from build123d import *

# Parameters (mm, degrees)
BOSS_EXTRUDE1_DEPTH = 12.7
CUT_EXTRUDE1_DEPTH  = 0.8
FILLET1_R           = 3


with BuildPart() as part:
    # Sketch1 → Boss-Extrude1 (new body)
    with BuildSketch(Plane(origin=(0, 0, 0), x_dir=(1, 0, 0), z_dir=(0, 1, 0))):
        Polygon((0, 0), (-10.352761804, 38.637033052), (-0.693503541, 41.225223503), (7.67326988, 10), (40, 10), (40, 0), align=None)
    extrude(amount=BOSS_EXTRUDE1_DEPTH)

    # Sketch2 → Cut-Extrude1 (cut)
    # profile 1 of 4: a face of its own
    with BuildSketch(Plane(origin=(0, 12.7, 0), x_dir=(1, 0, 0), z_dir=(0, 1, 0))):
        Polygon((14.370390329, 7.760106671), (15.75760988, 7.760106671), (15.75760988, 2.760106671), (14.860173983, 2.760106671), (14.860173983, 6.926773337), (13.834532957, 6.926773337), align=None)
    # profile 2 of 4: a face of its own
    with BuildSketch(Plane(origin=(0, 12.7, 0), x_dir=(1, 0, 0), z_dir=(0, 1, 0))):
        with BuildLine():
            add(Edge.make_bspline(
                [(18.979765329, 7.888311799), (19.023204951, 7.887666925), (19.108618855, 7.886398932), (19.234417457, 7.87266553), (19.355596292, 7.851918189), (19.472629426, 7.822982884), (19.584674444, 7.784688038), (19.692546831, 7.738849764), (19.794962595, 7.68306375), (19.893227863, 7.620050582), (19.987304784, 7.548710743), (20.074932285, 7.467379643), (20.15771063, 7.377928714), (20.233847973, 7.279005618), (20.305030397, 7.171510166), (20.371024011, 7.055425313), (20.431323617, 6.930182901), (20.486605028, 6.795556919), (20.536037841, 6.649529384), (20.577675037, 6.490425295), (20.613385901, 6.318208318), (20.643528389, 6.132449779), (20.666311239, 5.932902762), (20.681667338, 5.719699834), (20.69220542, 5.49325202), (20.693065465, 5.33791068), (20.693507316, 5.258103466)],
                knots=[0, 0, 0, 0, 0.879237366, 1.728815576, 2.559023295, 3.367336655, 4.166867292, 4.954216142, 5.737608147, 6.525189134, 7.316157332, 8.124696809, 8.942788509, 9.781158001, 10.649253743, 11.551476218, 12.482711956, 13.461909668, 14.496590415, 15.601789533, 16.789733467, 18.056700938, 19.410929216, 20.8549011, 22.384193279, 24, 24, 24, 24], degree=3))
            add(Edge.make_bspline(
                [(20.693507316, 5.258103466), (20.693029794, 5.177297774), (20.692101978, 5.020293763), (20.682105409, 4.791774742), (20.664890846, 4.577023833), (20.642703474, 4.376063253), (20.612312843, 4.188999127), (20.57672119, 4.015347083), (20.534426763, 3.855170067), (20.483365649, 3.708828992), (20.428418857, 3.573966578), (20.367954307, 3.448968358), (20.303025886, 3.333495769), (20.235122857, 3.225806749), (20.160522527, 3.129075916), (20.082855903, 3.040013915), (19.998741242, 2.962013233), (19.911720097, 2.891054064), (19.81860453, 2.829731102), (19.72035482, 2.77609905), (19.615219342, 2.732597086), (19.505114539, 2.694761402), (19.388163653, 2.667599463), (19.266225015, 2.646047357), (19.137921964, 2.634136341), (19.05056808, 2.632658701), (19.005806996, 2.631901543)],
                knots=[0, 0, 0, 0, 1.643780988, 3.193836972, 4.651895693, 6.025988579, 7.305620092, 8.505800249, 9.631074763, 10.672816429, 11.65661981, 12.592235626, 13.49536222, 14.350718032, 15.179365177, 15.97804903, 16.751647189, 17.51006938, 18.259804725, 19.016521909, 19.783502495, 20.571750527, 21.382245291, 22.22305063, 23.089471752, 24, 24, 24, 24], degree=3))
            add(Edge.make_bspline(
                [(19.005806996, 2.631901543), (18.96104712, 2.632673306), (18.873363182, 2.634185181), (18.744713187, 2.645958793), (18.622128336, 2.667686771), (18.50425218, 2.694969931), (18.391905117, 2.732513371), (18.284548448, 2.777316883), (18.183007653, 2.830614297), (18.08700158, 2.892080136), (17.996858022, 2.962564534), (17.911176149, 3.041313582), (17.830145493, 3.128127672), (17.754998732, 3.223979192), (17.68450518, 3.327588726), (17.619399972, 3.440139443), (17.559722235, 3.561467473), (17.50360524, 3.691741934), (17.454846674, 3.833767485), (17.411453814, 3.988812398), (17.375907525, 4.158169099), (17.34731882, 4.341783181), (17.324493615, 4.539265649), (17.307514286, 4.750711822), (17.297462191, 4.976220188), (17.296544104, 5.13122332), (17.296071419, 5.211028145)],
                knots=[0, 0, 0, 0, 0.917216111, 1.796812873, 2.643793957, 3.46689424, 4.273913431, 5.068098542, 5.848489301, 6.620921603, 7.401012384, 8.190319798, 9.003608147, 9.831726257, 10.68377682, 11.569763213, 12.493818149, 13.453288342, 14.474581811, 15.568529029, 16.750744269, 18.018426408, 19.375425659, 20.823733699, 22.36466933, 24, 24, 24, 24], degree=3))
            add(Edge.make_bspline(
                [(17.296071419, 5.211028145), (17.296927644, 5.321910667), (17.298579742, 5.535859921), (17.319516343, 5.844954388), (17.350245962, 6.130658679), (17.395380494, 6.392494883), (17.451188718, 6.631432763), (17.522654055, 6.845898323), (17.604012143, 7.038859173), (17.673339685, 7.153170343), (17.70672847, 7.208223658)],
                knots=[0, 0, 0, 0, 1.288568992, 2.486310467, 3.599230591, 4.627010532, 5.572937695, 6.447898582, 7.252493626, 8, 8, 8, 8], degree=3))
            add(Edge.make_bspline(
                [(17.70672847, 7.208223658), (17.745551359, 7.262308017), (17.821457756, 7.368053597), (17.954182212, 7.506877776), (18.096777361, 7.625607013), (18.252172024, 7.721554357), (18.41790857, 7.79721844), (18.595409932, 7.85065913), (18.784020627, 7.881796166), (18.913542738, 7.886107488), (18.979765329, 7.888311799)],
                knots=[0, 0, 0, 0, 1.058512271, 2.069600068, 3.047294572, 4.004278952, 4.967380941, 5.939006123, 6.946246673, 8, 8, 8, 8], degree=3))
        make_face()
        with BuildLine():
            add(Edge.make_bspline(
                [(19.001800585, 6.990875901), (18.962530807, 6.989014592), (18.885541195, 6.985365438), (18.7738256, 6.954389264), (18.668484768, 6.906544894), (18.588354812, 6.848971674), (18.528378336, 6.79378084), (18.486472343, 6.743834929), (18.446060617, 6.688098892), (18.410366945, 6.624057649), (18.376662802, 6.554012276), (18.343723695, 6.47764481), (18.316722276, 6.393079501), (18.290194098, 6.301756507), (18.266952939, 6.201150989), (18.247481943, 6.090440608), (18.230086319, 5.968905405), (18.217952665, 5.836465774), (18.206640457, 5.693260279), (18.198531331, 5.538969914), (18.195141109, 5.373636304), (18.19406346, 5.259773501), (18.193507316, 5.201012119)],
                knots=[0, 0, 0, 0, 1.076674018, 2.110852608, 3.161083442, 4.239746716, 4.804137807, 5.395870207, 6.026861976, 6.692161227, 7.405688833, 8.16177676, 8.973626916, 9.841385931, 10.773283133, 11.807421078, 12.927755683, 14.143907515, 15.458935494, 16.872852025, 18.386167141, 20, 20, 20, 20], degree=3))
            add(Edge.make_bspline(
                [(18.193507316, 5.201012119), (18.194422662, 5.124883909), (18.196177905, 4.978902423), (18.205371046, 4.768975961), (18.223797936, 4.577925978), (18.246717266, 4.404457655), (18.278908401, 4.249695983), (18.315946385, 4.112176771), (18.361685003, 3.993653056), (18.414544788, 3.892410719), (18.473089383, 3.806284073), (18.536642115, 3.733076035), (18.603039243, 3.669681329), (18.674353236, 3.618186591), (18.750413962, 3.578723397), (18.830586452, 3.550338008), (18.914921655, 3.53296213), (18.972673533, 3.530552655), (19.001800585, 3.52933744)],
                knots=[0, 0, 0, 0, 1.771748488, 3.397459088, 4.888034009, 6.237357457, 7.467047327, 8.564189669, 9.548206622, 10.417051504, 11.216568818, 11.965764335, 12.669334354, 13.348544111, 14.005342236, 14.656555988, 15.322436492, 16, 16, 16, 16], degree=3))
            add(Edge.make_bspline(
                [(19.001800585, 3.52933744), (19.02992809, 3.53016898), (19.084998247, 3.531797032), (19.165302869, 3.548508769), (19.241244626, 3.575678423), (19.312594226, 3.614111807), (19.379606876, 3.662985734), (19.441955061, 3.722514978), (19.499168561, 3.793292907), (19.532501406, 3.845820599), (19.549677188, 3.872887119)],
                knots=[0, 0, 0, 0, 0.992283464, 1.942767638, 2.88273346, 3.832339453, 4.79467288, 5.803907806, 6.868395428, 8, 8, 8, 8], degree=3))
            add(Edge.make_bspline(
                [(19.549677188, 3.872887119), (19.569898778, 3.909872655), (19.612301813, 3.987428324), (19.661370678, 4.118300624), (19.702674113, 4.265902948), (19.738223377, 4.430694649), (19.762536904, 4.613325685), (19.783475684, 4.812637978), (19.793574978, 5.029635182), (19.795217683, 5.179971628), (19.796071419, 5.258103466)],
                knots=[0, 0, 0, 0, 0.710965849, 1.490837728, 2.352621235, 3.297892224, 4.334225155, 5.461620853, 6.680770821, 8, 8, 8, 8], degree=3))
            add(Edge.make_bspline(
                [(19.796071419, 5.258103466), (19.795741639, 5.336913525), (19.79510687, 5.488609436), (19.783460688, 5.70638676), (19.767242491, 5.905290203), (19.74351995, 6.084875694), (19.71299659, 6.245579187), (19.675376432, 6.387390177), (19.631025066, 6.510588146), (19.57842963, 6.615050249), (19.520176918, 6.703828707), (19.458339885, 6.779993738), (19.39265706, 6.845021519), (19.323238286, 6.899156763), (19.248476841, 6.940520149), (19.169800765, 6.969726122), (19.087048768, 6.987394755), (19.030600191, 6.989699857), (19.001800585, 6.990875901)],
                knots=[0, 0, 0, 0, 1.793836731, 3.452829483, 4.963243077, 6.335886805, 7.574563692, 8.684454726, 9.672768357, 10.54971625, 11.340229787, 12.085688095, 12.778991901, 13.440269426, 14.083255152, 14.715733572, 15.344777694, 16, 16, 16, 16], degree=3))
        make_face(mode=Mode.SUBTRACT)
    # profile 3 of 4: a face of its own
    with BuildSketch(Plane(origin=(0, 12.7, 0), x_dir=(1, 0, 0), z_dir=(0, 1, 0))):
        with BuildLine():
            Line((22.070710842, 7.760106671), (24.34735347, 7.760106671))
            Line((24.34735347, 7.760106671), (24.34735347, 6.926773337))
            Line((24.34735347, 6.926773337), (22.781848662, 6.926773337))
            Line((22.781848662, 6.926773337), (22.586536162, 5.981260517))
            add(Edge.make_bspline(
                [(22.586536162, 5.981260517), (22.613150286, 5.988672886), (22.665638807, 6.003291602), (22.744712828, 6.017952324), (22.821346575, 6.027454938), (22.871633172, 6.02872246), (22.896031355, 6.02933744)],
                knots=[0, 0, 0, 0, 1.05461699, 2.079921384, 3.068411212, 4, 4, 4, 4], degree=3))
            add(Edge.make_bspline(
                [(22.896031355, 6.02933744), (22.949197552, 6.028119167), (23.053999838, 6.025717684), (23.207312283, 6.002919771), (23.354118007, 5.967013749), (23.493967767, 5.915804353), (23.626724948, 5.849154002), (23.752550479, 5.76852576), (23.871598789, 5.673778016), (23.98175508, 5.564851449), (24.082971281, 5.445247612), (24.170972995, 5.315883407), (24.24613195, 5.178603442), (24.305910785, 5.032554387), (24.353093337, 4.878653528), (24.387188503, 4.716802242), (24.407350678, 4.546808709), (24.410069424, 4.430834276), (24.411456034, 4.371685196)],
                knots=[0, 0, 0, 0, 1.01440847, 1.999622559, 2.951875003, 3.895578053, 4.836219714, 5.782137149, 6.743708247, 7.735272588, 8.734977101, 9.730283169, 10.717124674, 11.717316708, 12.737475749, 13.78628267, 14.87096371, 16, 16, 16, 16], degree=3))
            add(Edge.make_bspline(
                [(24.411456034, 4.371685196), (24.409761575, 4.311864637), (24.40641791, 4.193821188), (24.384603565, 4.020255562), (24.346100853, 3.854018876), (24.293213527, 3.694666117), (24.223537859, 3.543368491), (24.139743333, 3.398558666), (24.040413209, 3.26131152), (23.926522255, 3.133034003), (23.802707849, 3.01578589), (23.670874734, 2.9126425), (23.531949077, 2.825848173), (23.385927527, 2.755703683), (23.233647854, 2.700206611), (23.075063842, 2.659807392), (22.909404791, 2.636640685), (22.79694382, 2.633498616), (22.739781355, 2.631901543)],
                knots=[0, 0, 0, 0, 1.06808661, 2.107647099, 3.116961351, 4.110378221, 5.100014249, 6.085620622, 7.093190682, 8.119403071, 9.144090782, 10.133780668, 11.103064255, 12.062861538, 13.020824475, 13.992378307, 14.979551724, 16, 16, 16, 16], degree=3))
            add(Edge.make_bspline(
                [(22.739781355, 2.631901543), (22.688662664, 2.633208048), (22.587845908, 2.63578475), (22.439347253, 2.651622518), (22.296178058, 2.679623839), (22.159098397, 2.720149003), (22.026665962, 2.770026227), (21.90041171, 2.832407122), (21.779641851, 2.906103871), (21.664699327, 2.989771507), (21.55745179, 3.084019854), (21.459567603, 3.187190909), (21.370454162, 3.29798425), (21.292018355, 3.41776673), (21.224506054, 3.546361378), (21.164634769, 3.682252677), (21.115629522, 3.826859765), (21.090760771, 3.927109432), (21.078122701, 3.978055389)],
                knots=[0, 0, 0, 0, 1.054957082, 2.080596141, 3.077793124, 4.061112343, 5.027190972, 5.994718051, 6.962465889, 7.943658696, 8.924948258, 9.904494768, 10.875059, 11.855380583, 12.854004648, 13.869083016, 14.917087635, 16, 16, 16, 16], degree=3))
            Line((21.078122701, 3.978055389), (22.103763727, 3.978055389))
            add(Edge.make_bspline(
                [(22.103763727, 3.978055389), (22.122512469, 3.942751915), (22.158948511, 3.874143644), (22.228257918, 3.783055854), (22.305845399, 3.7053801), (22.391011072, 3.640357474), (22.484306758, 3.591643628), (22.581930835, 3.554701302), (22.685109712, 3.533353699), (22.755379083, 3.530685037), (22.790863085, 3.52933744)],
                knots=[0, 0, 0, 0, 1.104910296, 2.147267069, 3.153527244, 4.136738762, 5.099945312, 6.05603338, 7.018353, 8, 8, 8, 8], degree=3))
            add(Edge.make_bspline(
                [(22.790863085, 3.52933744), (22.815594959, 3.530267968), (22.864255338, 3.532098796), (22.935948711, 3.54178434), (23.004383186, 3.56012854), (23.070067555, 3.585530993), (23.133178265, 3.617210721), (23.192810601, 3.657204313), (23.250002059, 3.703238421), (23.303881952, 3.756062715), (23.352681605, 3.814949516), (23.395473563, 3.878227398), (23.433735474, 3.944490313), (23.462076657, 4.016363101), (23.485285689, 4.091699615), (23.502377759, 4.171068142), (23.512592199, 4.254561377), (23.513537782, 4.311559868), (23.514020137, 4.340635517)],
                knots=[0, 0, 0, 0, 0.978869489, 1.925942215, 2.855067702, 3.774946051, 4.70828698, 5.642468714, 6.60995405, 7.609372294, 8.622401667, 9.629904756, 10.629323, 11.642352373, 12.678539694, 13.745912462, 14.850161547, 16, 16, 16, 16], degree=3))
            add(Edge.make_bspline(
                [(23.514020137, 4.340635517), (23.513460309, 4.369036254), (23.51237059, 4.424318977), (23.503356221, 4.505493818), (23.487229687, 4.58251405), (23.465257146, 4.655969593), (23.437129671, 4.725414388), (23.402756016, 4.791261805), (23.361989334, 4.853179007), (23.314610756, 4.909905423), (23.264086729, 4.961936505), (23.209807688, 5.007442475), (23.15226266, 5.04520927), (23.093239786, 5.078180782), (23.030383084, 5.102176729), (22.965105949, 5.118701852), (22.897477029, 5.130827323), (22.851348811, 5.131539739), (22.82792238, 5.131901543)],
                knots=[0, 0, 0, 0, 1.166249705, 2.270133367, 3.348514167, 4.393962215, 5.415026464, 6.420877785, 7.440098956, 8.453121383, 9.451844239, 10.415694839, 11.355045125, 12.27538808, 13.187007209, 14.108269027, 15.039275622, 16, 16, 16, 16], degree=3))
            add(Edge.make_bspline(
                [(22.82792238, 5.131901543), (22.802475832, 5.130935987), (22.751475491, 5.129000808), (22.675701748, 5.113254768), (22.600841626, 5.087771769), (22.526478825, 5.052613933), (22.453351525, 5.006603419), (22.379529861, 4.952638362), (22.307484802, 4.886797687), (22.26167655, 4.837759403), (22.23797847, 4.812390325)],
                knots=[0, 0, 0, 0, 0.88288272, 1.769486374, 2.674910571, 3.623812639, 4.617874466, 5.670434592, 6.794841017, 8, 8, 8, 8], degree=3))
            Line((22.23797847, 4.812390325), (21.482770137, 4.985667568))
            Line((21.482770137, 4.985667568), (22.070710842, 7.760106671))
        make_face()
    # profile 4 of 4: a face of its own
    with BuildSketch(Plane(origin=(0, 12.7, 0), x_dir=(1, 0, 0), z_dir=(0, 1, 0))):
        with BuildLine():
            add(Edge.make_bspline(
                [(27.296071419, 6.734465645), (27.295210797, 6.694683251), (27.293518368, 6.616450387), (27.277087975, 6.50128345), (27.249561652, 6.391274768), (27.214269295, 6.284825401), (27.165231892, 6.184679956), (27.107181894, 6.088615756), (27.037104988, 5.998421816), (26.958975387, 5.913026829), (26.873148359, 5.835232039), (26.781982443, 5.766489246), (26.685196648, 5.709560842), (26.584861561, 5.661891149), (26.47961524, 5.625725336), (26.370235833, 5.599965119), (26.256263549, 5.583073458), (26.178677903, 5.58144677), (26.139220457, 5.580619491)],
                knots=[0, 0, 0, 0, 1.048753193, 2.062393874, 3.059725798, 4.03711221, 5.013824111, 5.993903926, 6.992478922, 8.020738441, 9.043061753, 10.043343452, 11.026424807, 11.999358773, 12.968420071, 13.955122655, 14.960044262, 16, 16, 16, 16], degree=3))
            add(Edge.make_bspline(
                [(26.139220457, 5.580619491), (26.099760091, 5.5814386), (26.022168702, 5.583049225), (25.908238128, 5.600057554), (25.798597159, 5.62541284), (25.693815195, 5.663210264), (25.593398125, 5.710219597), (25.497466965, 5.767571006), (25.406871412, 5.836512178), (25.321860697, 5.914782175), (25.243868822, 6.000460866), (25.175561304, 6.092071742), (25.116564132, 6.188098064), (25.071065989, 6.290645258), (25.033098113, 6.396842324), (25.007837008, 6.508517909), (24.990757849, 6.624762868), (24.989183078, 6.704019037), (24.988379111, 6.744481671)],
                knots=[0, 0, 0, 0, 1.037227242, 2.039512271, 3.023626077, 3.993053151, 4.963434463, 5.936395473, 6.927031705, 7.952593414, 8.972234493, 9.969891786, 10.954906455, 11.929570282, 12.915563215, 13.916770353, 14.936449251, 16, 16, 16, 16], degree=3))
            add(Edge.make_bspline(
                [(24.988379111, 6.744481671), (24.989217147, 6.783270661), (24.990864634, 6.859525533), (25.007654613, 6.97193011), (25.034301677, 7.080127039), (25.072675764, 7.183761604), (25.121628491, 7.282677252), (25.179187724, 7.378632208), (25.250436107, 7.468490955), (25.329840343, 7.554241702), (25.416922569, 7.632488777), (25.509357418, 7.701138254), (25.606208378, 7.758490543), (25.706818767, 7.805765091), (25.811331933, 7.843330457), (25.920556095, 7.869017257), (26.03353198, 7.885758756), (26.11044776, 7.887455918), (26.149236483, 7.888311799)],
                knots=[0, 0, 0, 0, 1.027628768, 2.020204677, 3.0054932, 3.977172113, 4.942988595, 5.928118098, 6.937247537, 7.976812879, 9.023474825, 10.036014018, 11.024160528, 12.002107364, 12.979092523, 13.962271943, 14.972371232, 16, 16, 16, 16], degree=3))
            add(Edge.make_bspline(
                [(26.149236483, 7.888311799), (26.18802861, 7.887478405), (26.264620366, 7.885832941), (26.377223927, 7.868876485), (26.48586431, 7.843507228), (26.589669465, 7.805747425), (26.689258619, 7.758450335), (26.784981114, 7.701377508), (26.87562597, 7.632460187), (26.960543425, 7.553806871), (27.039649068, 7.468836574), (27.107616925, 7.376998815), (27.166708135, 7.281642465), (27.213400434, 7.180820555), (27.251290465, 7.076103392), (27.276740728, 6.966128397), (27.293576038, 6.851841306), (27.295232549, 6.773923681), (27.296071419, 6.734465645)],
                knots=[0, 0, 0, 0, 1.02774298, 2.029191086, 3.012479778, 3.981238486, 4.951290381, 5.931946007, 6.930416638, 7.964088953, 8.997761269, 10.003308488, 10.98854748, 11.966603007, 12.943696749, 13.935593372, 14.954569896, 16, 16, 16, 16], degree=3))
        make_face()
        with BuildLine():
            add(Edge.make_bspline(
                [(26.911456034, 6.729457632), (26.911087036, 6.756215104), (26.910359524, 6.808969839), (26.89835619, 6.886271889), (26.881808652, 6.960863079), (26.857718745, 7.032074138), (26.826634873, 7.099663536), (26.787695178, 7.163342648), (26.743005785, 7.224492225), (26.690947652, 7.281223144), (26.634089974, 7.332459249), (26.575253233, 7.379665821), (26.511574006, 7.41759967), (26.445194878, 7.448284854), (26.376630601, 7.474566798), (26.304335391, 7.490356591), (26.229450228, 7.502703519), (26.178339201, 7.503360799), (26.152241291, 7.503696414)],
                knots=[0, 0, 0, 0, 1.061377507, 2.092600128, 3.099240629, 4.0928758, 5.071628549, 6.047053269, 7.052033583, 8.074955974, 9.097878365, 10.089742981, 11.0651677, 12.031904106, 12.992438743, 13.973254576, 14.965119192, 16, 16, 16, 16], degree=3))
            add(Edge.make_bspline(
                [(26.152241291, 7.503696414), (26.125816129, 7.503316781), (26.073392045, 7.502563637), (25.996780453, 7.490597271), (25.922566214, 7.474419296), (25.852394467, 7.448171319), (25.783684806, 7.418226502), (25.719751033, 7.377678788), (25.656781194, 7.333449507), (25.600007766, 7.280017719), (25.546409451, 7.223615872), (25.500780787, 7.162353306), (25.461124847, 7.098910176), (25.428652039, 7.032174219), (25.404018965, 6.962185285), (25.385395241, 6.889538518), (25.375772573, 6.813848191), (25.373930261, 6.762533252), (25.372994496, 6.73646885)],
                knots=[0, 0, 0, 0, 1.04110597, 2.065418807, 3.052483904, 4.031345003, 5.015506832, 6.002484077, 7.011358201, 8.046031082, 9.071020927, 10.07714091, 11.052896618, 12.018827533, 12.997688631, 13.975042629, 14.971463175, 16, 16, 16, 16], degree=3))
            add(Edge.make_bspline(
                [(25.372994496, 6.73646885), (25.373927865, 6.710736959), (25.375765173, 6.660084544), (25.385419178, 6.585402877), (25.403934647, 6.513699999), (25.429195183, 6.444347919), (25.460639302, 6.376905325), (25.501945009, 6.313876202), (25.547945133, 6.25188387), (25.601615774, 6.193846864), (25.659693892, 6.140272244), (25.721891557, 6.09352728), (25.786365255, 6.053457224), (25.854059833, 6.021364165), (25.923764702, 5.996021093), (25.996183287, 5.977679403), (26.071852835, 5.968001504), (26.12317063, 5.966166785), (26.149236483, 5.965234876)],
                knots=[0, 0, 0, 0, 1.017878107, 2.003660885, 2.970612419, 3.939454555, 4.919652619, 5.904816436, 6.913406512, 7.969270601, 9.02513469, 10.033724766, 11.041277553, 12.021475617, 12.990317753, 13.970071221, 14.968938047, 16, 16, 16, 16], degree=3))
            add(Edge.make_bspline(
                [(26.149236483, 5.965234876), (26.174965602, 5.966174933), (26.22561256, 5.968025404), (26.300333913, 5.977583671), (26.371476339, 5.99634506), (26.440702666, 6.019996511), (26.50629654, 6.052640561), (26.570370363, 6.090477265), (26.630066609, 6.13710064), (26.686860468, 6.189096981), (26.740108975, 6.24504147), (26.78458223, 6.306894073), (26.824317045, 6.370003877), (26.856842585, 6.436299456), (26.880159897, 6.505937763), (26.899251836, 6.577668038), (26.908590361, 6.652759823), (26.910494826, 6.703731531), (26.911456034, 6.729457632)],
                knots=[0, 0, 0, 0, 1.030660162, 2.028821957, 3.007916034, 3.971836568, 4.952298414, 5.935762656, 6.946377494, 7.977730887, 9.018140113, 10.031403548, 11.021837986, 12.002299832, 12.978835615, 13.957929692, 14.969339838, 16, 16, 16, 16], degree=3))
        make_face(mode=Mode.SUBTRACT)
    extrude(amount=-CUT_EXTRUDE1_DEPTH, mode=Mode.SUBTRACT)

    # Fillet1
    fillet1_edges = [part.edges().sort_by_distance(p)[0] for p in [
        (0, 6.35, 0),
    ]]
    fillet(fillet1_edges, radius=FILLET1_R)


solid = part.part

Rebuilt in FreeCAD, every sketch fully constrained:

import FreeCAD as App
import Part
import Sketcher
from FreeCAD import Vector
Q = App.Units.Quantity


def edges_at(feature, points):
    """Names of the edges that pass closest to the given points."""
    edges = feature.Shape.Edges
    near = lambda p: min(range(len(edges)), key=lambda i: edges[i].distToShape(Part.Vertex(*p))[0])
    return sorted({f"Edge{near(p) + 1}" for p in points})


def add_polygon(sketch, points):
    """Adds a closed chain of lines whose ends are joined by coincident constraints."""
    first, n = sketch.GeometryCount, len(points)
    for a, b in zip(points, points[1:] + points[:1]):
        sketch.addGeometry(Part.LineSegment(App.Vector(*a, 0), App.Vector(*b, 0)), False)
    for i in range(n):
        sketch.addConstraint(Sketcher.Constraint("Coincident", first + i, 2, first + (i + 1) % n, 1))

doc = App.newDocument("Part")
params = doc.addObject("Spreadsheet::Sheet", "Params")
for row, (alias, value) in enumerate([
    ("sketch1_width", "40 mm"),
    ("sketch1_height", "10 mm"),
    ("sketch1_length", "40 mm"),
    ("sketch1_length2", "10 mm"),
    ("pad1_length", "12.7 mm"),
    ("sketch2_height", "5 mm"),
    ("pocket1_length", "0.8 mm"),
    ("fillet_radius", "3 mm"),
], start=1):
    params.set(f"A{row}", alias)
    params.set(f"B{row}", "=" + value)
    params.setAlias(f"B{row}", alias)

body = doc.addObject("PartDesign::Body", "Body")

# Sketch on XZ plane
sketch1 = body.newObject("Sketcher::SketchObject", "Sketch")
sketch1.AttachmentSupport = (doc.getObject("XZ_Plane"), [""])
sketch1.MapMode = "FlatFace"
add_polygon(sketch1, [(-10.352762, -38.637033), (0, 0), (40, 0), (40, -10), (7.67327, -10), (-0.693504, -41.225224)])  # lines 0-5
sketch1.addConstraint(Sketcher.Constraint("Horizontal", 1))
sketch1.addConstraint(Sketcher.Constraint("Vertical", 2))
sketch1.addConstraint(Sketcher.Constraint("Horizontal", 3))
sketch1.addConstraint(Sketcher.Constraint("Coincident", 0, 2, -1, 1))
sketch1.addConstraint(Sketcher.Constraint("Parallel", 0, 4))
sketch1.addConstraint(Sketcher.Constraint("Perpendicular", 4, 5))
sketch1.addConstraint(Sketcher.Constraint("DistanceX", 1, 1, 1, 2, Q("40 mm")))
sketch1.addConstraint(Sketcher.Constraint("DistanceY", 2, 2, 2, 1, Q("10 mm")))
sketch1.addConstraint(Sketcher.Constraint("Angle", 0, Q("75 deg")))
sketch1.addConstraint(Sketcher.Constraint("Distance", 0, Q("40 mm")))
sketch1.addConstraint(Sketcher.Constraint("Distance", 5, Q("10 mm")))
sketch1.setExpression("Constraints[12]", "Params.sketch1_width")
sketch1.setExpression("Constraints[13]", "Params.sketch1_height")
sketch1.setExpression("Constraints[15]", "Params.sketch1_length")
sketch1.setExpression("Constraints[16]", "Params.sketch1_length2")
pad1 = body.newObject("PartDesign::Pad", "Pad")
pad1.Profile = sketch1
pad1.setExpression("Length", "Params.pad1_length")
pad1.Reversed = True

# Sketch on XZ plane
sketch2 = body.newObject("Sketcher::SketchObject", "Sketch001")
sketch2.AttachmentSupport = (doc.getObject("XZ_Plane"), [""])
sketch2.MapMode = "FlatFace"
sketch2.AttachmentOffset = App.Placement(Vector(0, 0, -12.7), App.Rotation())
add_polygon(sketch2, [(15.75761, -7.760107), (14.37039, -7.760107), (13.834533, -6.926773), (14.860174, -6.926773), (14.860174, -2.760107), (15.75761, -2.760107)])  # lines 0-5
sketch2.addGeometry(Part.BSplineCurve([Vector(18.979765, -7.888312, 0), Vector(19.023205, -7.887667, 0), Vector(19.108619, -7.886399, 0), Vector(19.234417, -7.872666, 0), Vector(19.355596, -7.851918, 0), Vector(19.472629, -7.822983, 0), Vector(19.584674, -7.784688, 0), Vector(19.692547, -7.73885, 0), Vector(19.794963, -7.683064, 0), Vector(19.893228, -7.620051, 0), Vector(19.987305, -7.548711, 0), Vector(20.074932, -7.46738, 0), Vector(20.157711, -7.377929, 0), Vector(20.233848, -7.279006, 0), Vector(20.30503, -7.17151, 0), Vector(20.371024, -7.055425, 0), Vector(20.431324, -6.930183, 0), Vector(20.486605, -6.795557, 0), Vector(20.536038, -6.649529, 0), Vector(20.577675, -6.490425, 0), Vector(20.613386, -6.318208, 0), Vector(20.643528, -6.13245, 0), Vector(20.666311, -5.932903, 0), Vector(20.681667, -5.7197, 0), Vector(20.692205, -5.493252, 0), Vector(20.693065, -5.337911, 0), Vector(20.693507, -5.258103, 0)], [4, 1, 1, 1, 1, 1, 1, 1, 1, 1, 1, 1, 1, 1, 1, 1, 1, 1, 1, 1, 1, 1, 1, 1, 4], [0, 0.879237366, 1.728815576, 2.559023295, 3.367336655, 4.166867292, 4.954216142, 5.737608147, 6.525189134, 7.316157332, 8.124696809, 8.942788509, 9.781158001, 10.649253743, 11.551476218, 12.482711956, 13.461909668, 14.496590415, 15.601789533, 16.789733467, 18.056700938, 19.410929216, 20.8549011, 22.384193279, 24], False, 3, [1, 1, 1, 1, 1, 1, 1, 1, 1, 1, 1, 1, 1, 1, 1, 1, 1, 1, 1, 1, 1, 1, 1, 1, 1, 1, 1], False), False)  # 6
sketch2.addGeometry(Part.BSplineCurve([Vector(17.706728, -7.208224, 0), Vector(17.745551, -7.262308, 0), Vector(17.821458, -7.368054, 0), Vector(17.954182, -7.506878, 0), Vector(18.096777, -7.625607, 0), Vector(18.252172, -7.721554, 0), Vector(18.417909, -7.797218, 0), Vector(18.59541, -7.850659, 0), Vector(18.784021, -7.881796, 0), Vector(18.913543, -7.886107, 0), Vector(18.979765, -7.888312, 0)], [4, 1, 1, 1, 1, 1, 1, 1, 4], [0, 1.058512271, 2.069600068, 3.047294572, 4.004278952, 4.967380941, 5.939006123, 6.946246673, 8], False, 3, [1, 1, 1, 1, 1, 1, 1, 1, 1, 1, 1], False), False)  # 7
sketch2.addGeometry(Part.BSplineCurve([Vector(17.296071, -5.211028, 0), Vector(17.296928, -5.321911, 0), Vector(17.29858, -5.53586, 0), Vector(17.319516, -5.844954, 0), Vector(17.350246, -6.130659, 0), Vector(17.39538, -6.392495, 0), Vector(17.451189, -6.631433, 0), Vector(17.522654, -6.845898, 0), Vector(17.604012, -7.038859, 0), Vector(17.67334, -7.15317, 0), Vector(17.706728, -7.208224, 0)], [4, 1, 1, 1, 1, 1, 1, 1, 4], [0, 1.288568992, 2.486310467, 3.599230591, 4.627010532, 5.572937695, 6.447898582, 7.252493626, 8], False, 3, [1, 1, 1, 1, 1, 1, 1, 1, 1, 1, 1], False), False)  # 8
sketch2.addGeometry(Part.BSplineCurve([Vector(19.005807, -2.631902, 0), Vector(18.961047, -2.632673, 0), Vector(18.873363, -2.634185, 0), Vector(18.744713, -2.645959, 0), Vector(18.622128, -2.667687, 0), Vector(18.504252, -2.69497, 0), Vector(18.391905, -2.732513, 0), Vector(18.284548, -2.777317, 0), Vector(18.183008, -2.830614, 0), Vector(18.087002, -2.89208, 0), Vector(17.996858, -2.962565, 0), Vector(17.911176, -3.041314, 0), Vector(17.830145, -3.128128, 0), Vector(17.754999, -3.223979, 0), Vector(17.684505, -3.327589, 0), Vector(17.6194, -3.440139, 0), Vector(17.559722, -3.561467, 0), Vector(17.503605, -3.691742, 0), Vector(17.454847, -3.833767, 0), Vector(17.411454, -3.988812, 0), Vector(17.375908, -4.158169, 0), Vector(17.347319, -4.341783, 0), Vector(17.324494, -4.539266, 0), Vector(17.307514, -4.750712, 0), Vector(17.297462, -4.97622, 0), Vector(17.296544, -5.131223, 0), Vector(17.296071, -5.211028, 0)], [4, 1, 1, 1, 1, 1, 1, 1, 1, 1, 1, 1, 1, 1, 1, 1, 1, 1, 1, 1, 1, 1, 1, 1, 4], [0, 0.917216111, 1.796812873, 2.643793957, 3.46689424, 4.273913431, 5.068098542, 5.848489301, 6.620921603, 7.401012384, 8.190319798, 9.003608147, 9.831726257, 10.68377682, 11.569763213, 12.493818149, 13.453288342, 14.474581811, 15.568529029, 16.750744269, 18.018426408, 19.375425659, 20.823733699, 22.36466933, 24], False, 3, [1, 1, 1, 1, 1, 1, 1, 1, 1, 1, 1, 1, 1, 1, 1, 1, 1, 1, 1, 1, 1, 1, 1, 1, 1, 1, 1], False), False)  # 9
sketch2.addGeometry(Part.BSplineCurve([Vector(20.693507, -5.258103, 0), Vector(20.69303, -5.177298, 0), Vector(20.692102, -5.020294, 0), Vector(20.682105, -4.791775, 0), Vector(20.664891, -4.577024, 0), Vector(20.642703, -4.376063, 0), Vector(20.612313, -4.188999, 0), Vector(20.576721, -4.015347, 0), Vector(20.534427, -3.85517, 0), Vector(20.483366, -3.708829, 0), Vector(20.428419, -3.573967, 0), Vector(20.367954, -3.448968, 0), Vector(20.303026, -3.333496, 0), Vector(20.235123, -3.225807, 0), Vector(20.160523, -3.129076, 0), Vector(20.082856, -3.040014, 0), Vector(19.998741, -2.962013, 0), Vector(19.91172, -2.891054, 0), Vector(19.818605, -2.829731, 0), Vector(19.720355, -2.776099, 0), Vector(19.615219, -2.732597, 0), Vector(19.505115, -2.694761, 0), Vector(19.388164, -2.667599, 0), Vector(19.266225, -2.646047, 0), Vector(19.137922, -2.634136, 0), Vector(19.050568, -2.632659, 0), Vector(19.005807, -2.631902, 0)], [4, 1, 1, 1, 1, 1, 1, 1, 1, 1, 1, 1, 1, 1, 1, 1, 1, 1, 1, 1, 1, 1, 1, 1, 4], [0, 1.643780988, 3.193836972, 4.651895693, 6.025988579, 7.305620092, 8.505800249, 9.631074763, 10.672816429, 11.65661981, 12.592235626, 13.49536222, 14.350718032, 15.179365177, 15.97804903, 16.751647189, 17.51006938, 18.259804725, 19.016521909, 19.783502495, 20.571750527, 21.382245291, 22.22305063, 23.089471752, 24], False, 3, [1, 1, 1, 1, 1, 1, 1, 1, 1, 1, 1, 1, 1, 1, 1, 1, 1, 1, 1, 1, 1, 1, 1, 1, 1, 1, 1], False), False)  # 10
sketch2.addGeometry(Part.BSplineCurve([Vector(19.796071, -5.258103, 0), Vector(19.795742, -5.336914, 0), Vector(19.795107, -5.488609, 0), Vector(19.783461, -5.706387, 0), Vector(19.767242, -5.90529, 0), Vector(19.74352, -6.084876, 0), Vector(19.712997, -6.245579, 0), Vector(19.675376, -6.38739, 0), Vector(19.631025, -6.510588, 0), Vector(19.57843, -6.61505, 0), Vector(19.520177, -6.703829, 0), Vector(19.45834, -6.779994, 0), Vector(19.392657, -6.845022, 0), Vector(19.323238, -6.899157, 0), Vector(19.248477, -6.94052, 0), Vector(19.169801, -6.969726, 0), Vector(19.087049, -6.987395, 0), Vector(19.0306, -6.9897, 0), Vector(19.001801, -6.990876, 0)], [4, 1, 1, 1, 1, 1, 1, 1, 1, 1, 1, 1, 1, 1, 1, 1, 4], [0, 1.793836731, 3.452829483, 4.963243077, 6.335886805, 7.574563692, 8.684454726, 9.672768357, 10.54971625, 11.340229787, 12.085688095, 12.778991901, 13.440269426, 14.083255152, 14.715733572, 15.344777694, 16], False, 3, [1, 1, 1, 1, 1, 1, 1, 1, 1, 1, 1, 1, 1, 1, 1, 1, 1, 1, 1], False), False)  # 11
sketch2.addGeometry(Part.BSplineCurve([Vector(19.549677, -3.872887, 0), Vector(19.569899, -3.909873, 0), Vector(19.612302, -3.987428, 0), Vector(19.661371, -4.118301, 0), Vector(19.702674, -4.265903, 0), Vector(19.738223, -4.430695, 0), Vector(19.762537, -4.613326, 0), Vector(19.783476, -4.812638, 0), Vector(19.793575, -5.029635, 0), Vector(19.795218, -5.179972, 0), Vector(19.796071, -5.258103, 0)], [4, 1, 1, 1, 1, 1, 1, 1, 4], [0, 0.710965849, 1.490837728, 2.352621235, 3.297892224, 4.334225155, 5.461620853, 6.680770821, 8], False, 3, [1, 1, 1, 1, 1, 1, 1, 1, 1, 1, 1], False), False)  # 12
sketch2.addGeometry(Part.BSplineCurve([Vector(19.001801, -3.529337, 0), Vector(19.029928, -3.530169, 0), Vector(19.084998, -3.531797, 0), Vector(19.165303, -3.548509, 0), Vector(19.241245, -3.575678, 0), Vector(19.312594, -3.614112, 0), Vector(19.379607, -3.662986, 0), Vector(19.441955, -3.722515, 0), Vector(19.499169, -3.793293, 0), Vector(19.532501, -3.845821, 0), Vector(19.549677, -3.872887, 0)], [4, 1, 1, 1, 1, 1, 1, 1, 4], [0, 0.992283464, 1.942767638, 2.88273346, 3.832339453, 4.79467288, 5.803907806, 6.868395428, 8], False, 3, [1, 1, 1, 1, 1, 1, 1, 1, 1, 1, 1], False), False)  # 13
sketch2.addGeometry(Part.BSplineCurve([Vector(18.193507, -5.201012, 0), Vector(18.194423, -5.124884, 0), Vector(18.196178, -4.978902, 0), Vector(18.205371, -4.768976, 0), Vector(18.223798, -4.577926, 0), Vector(18.246717, -4.404458, 0), Vector(18.278908, -4.249696, 0), Vector(18.315946, -4.112177, 0), Vector(18.361685, -3.993653, 0), Vector(18.414545, -3.892411, 0), Vector(18.473089, -3.806284, 0), Vector(18.536642, -3.733076, 0), Vector(18.603039, -3.669681, 0), Vector(18.674353, -3.618187, 0), Vector(18.750414, -3.578723, 0), Vector(18.830586, -3.550338, 0), Vector(18.914922, -3.532962, 0), Vector(18.972674, -3.530553, 0), Vector(19.001801, -3.529337, 0)], [4, 1, 1, 1, 1, 1, 1, 1, 1, 1, 1, 1, 1, 1, 1, 1, 4], [0, 1.771748488, 3.397459088, 4.888034009, 6.237357457, 7.467047327, 8.564189669, 9.548206622, 10.417051504, 11.216568818, 11.965764335, 12.669334354, 13.348544111, 14.005342236, 14.656555988, 15.322436492, 16], False, 3, [1, 1, 1, 1, 1, 1, 1, 1, 1, 1, 1, 1, 1, 1, 1, 1, 1, 1, 1], False), False)  # 14
sketch2.addGeometry(Part.BSplineCurve([Vector(19.001801, -6.990876, 0), Vector(18.962531, -6.989015, 0), Vector(18.885541, -6.985365, 0), Vector(18.773826, -6.954389, 0), Vector(18.668485, -6.906545, 0), Vector(18.588355, -6.848972, 0), Vector(18.528378, -6.793781, 0), Vector(18.486472, -6.743835, 0), Vector(18.446061, -6.688099, 0), Vector(18.410367, -6.624058, 0), Vector(18.376663, -6.554012, 0), Vector(18.343724, -6.477645, 0), Vector(18.316722, -6.39308, 0), Vector(18.290194, -6.301757, 0), Vector(18.266953, -6.201151, 0), Vector(18.247482, -6.090441, 0), Vector(18.230086, -5.968905, 0), Vector(18.217953, -5.836466, 0), Vector(18.20664, -5.69326, 0), Vector(18.198531, -5.53897, 0), Vector(18.195141, -5.373636, 0), Vector(18.194063, -5.259774, 0), Vector(18.193507, -5.201012, 0)], [4, 1, 1, 1, 1, 1, 1, 1, 1, 1, 1, 1, 1, 1, 1, 1, 1, 1, 1, 1, 4], [0, 1.076674018, 2.110852608, 3.161083442, 4.239746716, 4.804137807, 5.395870207, 6.026861976, 6.692161227, 7.405688833, 8.16177676, 8.973626916, 9.841385931, 10.773283133, 11.807421078, 12.927755683, 14.143907515, 15.458935494, 16.872852025, 18.386167141, 20], False, 3, [1, 1, 1, 1, 1, 1, 1, 1, 1, 1, 1, 1, 1, 1, 1, 1, 1, 1, 1, 1, 1, 1, 1], False), False)  # 15
sketch2.addGeometry(Part.LineSegment(Vector(24.347353, -7.760107, 0), Vector(22.070711, -7.760107, 0)), False)  # 16
sketch2.addGeometry(Part.LineSegment(Vector(22.070711, -7.760107, 0), Vector(21.48277, -4.985668, 0)), False)  # 17
sketch2.addGeometry(Part.LineSegment(Vector(21.48277, -4.985668, 0), Vector(22.237978, -4.81239, 0)), False)  # 18
sketch2.addGeometry(Part.BSplineCurve([Vector(22.827922, -5.131902, 0), Vector(22.802476, -5.130936, 0), Vector(22.751475, -5.129001, 0), Vector(22.675702, -5.113255, 0), Vector(22.600842, -5.087772, 0), Vector(22.526479, -5.052614, 0), Vector(22.453352, -5.006603, 0), Vector(22.37953, -4.952638, 0), Vector(22.307485, -4.886798, 0), Vector(22.261677, -4.837759, 0), Vector(22.237978, -4.81239, 0)], [4, 1, 1, 1, 1, 1, 1, 1, 4], [0, 0.88288272, 1.769486374, 2.674910571, 3.623812639, 4.617874466, 5.670434592, 6.794841017, 8], False, 3, [1, 1, 1, 1, 1, 1, 1, 1, 1, 1, 1], False), False)  # 19
sketch2.addGeometry(Part.BSplineCurve([Vector(23.51402, -4.340636, 0), Vector(23.51346, -4.369036, 0), Vector(23.512371, -4.424319, 0), Vector(23.503356, -4.505494, 0), Vector(23.48723, -4.582514, 0), Vector(23.465257, -4.65597, 0), Vector(23.43713, -4.725414, 0), Vector(23.402756, -4.791262, 0), Vector(23.361989, -4.853179, 0), Vector(23.314611, -4.909905, 0), Vector(23.264087, -4.961937, 0), Vector(23.209808, -5.007442, 0), Vector(23.152263, -5.045209, 0), Vector(23.09324, -5.078181, 0), Vector(23.030383, -5.102177, 0), Vector(22.965106, -5.118702, 0), Vector(22.897477, -5.130827, 0), Vector(22.851349, -5.13154, 0), Vector(22.827922, -5.131902, 0)], [4, 1, 1, 1, 1, 1, 1, 1, 1, 1, 1, 1, 1, 1, 1, 1, 4], [0, 1.166249705, 2.270133367, 3.348514167, 4.393962215, 5.415026464, 6.420877785, 7.440098956, 8.453121383, 9.451844239, 10.415694839, 11.355045125, 12.27538808, 13.187007209, 14.108269027, 15.039275622, 16], False, 3, [1, 1, 1, 1, 1, 1, 1, 1, 1, 1, 1, 1, 1, 1, 1, 1, 1, 1, 1], False), False)  # 20
sketch2.addGeometry(Part.BSplineCurve([Vector(22.790863, -3.529337, 0), Vector(22.815595, -3.530268, 0), Vector(22.864255, -3.532099, 0), Vector(22.935949, -3.541784, 0), Vector(23.004383, -3.560129, 0), Vector(23.070068, -3.585531, 0), Vector(23.133178, -3.617211, 0), Vector(23.192811, -3.657204, 0), Vector(23.250002, -3.703238, 0), Vector(23.303882, -3.756063, 0), Vector(23.352682, -3.81495, 0), Vector(23.395474, -3.878227, 0), Vector(23.433735, -3.94449, 0), Vector(23.462077, -4.016363, 0), Vector(23.485286, -4.0917, 0), Vector(23.502378, -4.171068, 0), Vector(23.512592, -4.254561, 0), Vector(23.513538, -4.31156, 0), Vector(23.51402, -4.340636, 0)], [4, 1, 1, 1, 1, 1, 1, 1, 1, 1, 1, 1, 1, 1, 1, 1, 4], [0, 0.978869489, 1.925942215, 2.855067702, 3.774946051, 4.70828698, 5.642468714, 6.60995405, 7.609372294, 8.622401667, 9.629904756, 10.629323, 11.642352373, 12.678539694, 13.745912462, 14.850161547, 16], False, 3, [1, 1, 1, 1, 1, 1, 1, 1, 1, 1, 1, 1, 1, 1, 1, 1, 1, 1, 1], False), False)  # 21
sketch2.addGeometry(Part.BSplineCurve([Vector(22.103764, -3.978055, 0), Vector(22.122512, -3.942752, 0), Vector(22.158949, -3.874144, 0), Vector(22.228258, -3.783056, 0), Vector(22.305845, -3.70538, 0), Vector(22.391011, -3.640357, 0), Vector(22.484307, -3.591644, 0), Vector(22.581931, -3.554701, 0), Vector(22.68511, -3.533354, 0), Vector(22.755379, -3.530685, 0), Vector(22.790863, -3.529337, 0)], [4, 1, 1, 1, 1, 1, 1, 1, 4], [0, 1.104910296, 2.147267069, 3.153527244, 4.136738762, 5.099945312, 6.05603338, 7.018353, 8], False, 3, [1, 1, 1, 1, 1, 1, 1, 1, 1, 1, 1], False), False)  # 22
sketch2.addGeometry(Part.LineSegment(Vector(22.103764, -3.978055, 0), Vector(21.078123, -3.978055, 0)), False)  # 23
sketch2.addGeometry(Part.BSplineCurve([Vector(22.739781, -2.631902, 0), Vector(22.688663, -2.633208, 0), Vector(22.587846, -2.635785, 0), Vector(22.439347, -2.651623, 0), Vector(22.296178, -2.679624, 0), Vector(22.159098, -2.720149, 0), Vector(22.026666, -2.770026, 0), Vector(21.900412, -2.832407, 0), Vector(21.779642, -2.906104, 0), Vector(21.664699, -2.989772, 0), Vector(21.557452, -3.08402, 0), Vector(21.459568, -3.187191, 0), Vector(21.370454, -3.297984, 0), Vector(21.292018, -3.417767, 0), Vector(21.224506, -3.546361, 0), Vector(21.164635, -3.682253, 0), Vector(21.11563, -3.82686, 0), Vector(21.090761, -3.927109, 0), Vector(21.078123, -3.978055, 0)], [4, 1, 1, 1, 1, 1, 1, 1, 1, 1, 1, 1, 1, 1, 1, 1, 4], [0, 1.054957082, 2.080596141, 3.077793124, 4.061112343, 5.027190972, 5.994718051, 6.962465889, 7.943658696, 8.924948258, 9.904494768, 10.875059, 11.855380583, 12.854004648, 13.869083016, 14.917087635, 16], False, 3, [1, 1, 1, 1, 1, 1, 1, 1, 1, 1, 1, 1, 1, 1, 1, 1, 1, 1, 1], False), False)  # 24
sketch2.addGeometry(Part.BSplineCurve([Vector(24.411456, -4.371685, 0), Vector(24.409762, -4.311865, 0), Vector(24.406418, -4.193821, 0), Vector(24.384604, -4.020256, 0), Vector(24.346101, -3.854019, 0), Vector(24.293214, -3.694666, 0), Vector(24.223538, -3.543368, 0), Vector(24.139743, -3.398559, 0), Vector(24.040413, -3.261312, 0), Vector(23.926522, -3.133034, 0), Vector(23.802708, -3.015786, 0), Vector(23.670875, -2.912643, 0), Vector(23.531949, -2.825848, 0), Vector(23.385928, -2.755704, 0), Vector(23.233648, -2.700207, 0), Vector(23.075064, -2.659807, 0), Vector(22.909405, -2.636641, 0), Vector(22.796944, -2.633499, 0), Vector(22.739781, -2.631902, 0)], [4, 1, 1, 1, 1, 1, 1, 1, 1, 1, 1, 1, 1, 1, 1, 1, 4], [0, 1.06808661, 2.107647099, 3.116961351, 4.110378221, 5.100014249, 6.085620622, 7.093190682, 8.119403071, 9.144090782, 10.133780668, 11.103064255, 12.062861538, 13.020824475, 13.992378307, 14.979551724, 16], False, 3, [1, 1, 1, 1, 1, 1, 1, 1, 1, 1, 1, 1, 1, 1, 1, 1, 1, 1, 1], False), False)  # 25
sketch2.addGeometry(Part.BSplineCurve([Vector(22.896031, -6.029337, 0), Vector(22.949198, -6.028119, 0), Vector(23.054, -6.025718, 0), Vector(23.207312, -6.00292, 0), Vector(23.354118, -5.967014, 0), Vector(23.493968, -5.915804, 0), Vector(23.626725, -5.849154, 0), Vector(23.75255, -5.768526, 0), Vector(23.871599, -5.673778, 0), Vector(23.981755, -5.564851, 0), Vector(24.082971, -5.445248, 0), Vector(24.170973, -5.315883, 0), Vector(24.246132, -5.178603, 0), Vector(24.305911, -5.032554, 0), Vector(24.353093, -4.878654, 0), Vector(24.387189, -4.716802, 0), Vector(24.407351, -4.546809, 0), Vector(24.410069, -4.430834, 0), Vector(24.411456, -4.371685, 0)], [4, 1, 1, 1, 1, 1, 1, 1, 1, 1, 1, 1, 1, 1, 1, 1, 4], [0, 1.01440847, 1.999622559, 2.951875003, 3.895578053, 4.836219714, 5.782137149, 6.743708247, 7.735272588, 8.734977101, 9.730283169, 10.717124674, 11.717316708, 12.737475749, 13.78628267, 14.87096371, 16], False, 3, [1, 1, 1, 1, 1, 1, 1, 1, 1, 1, 1, 1, 1, 1, 1, 1, 1, 1, 1], False), False)  # 26
sketch2.addGeometry(Part.BSplineCurve([Vector(22.586536, -5.981261, 0), Vector(22.61315, -5.988673, 0), Vector(22.665639, -6.003292, 0), Vector(22.744713, -6.017952, 0), Vector(22.821347, -6.027455, 0), Vector(22.871633, -6.028722, 0), Vector(22.896031, -6.029337, 0)], [4, 1, 1, 1, 4], [0, 1.05461699, 2.079921384, 3.068411212, 4], False, 3, [1, 1, 1, 1, 1, 1, 1], False), False)  # 27
sketch2.addGeometry(Part.LineSegment(Vector(22.586536, -5.981261, 0), Vector(22.781849, -6.926773, 0)), False)  # 28
sketch2.addGeometry(Part.LineSegment(Vector(22.781849, -6.926773, 0), Vector(24.347353, -6.926773, 0)), False)  # 29
sketch2.addGeometry(Part.LineSegment(Vector(24.347353, -6.926773, 0), Vector(24.347353, -7.760107, 0)), False)  # 30
sketch2.addGeometry(Part.BSplineCurve([Vector(27.296071, -6.734466, 0), Vector(27.295211, -6.694683, 0), Vector(27.293518, -6.61645, 0), Vector(27.277088, -6.501283, 0), Vector(27.249562, -6.391275, 0), Vector(27.214269, -6.284825, 0), Vector(27.165232, -6.18468, 0), Vector(27.107182, -6.088616, 0), Vector(27.037105, -5.998422, 0), Vector(26.958975, -5.913027, 0), Vector(26.873148, -5.835232, 0), Vector(26.781982, -5.766489, 0), Vector(26.685197, -5.709561, 0), Vector(26.584862, -5.661891, 0), Vector(26.479615, -5.625725, 0), Vector(26.370236, -5.599965, 0), Vector(26.256264, -5.583073, 0), Vector(26.178678, -5.581447, 0), Vector(26.13922, -5.580619, 0)], [4, 1, 1, 1, 1, 1, 1, 1, 1, 1, 1, 1, 1, 1, 1, 1, 4], [0, 1.048753193, 2.062393874, 3.059725798, 4.03711221, 5.013824111, 5.993903926, 6.992478922, 8.020738441, 9.043061753, 10.043343452, 11.026424807, 11.999358773, 12.968420071, 13.955122655, 14.960044262, 16], False, 3, [1, 1, 1, 1, 1, 1, 1, 1, 1, 1, 1, 1, 1, 1, 1, 1, 1, 1, 1], False), False)  # 31
sketch2.addGeometry(Part.BSplineCurve([Vector(26.149236, -7.888312, 0), Vector(26.188029, -7.887478, 0), Vector(26.26462, -7.885833, 0), Vector(26.377224, -7.868876, 0), Vector(26.485864, -7.843507, 0), Vector(26.589669, -7.805747, 0), Vector(26.689259, -7.75845, 0), Vector(26.784981, -7.701378, 0), Vector(26.875626, -7.63246, 0), Vector(26.960543, -7.553807, 0), Vector(27.039649, -7.468837, 0), Vector(27.107617, -7.376999, 0), Vector(27.166708, -7.281642, 0), Vector(27.2134, -7.180821, 0), Vector(27.25129, -7.076103, 0), Vector(27.276741, -6.966128, 0), Vector(27.293576, -6.851841, 0), Vector(27.295233, -6.773924, 0), Vector(27.296071, -6.734466, 0)], [4, 1, 1, 1, 1, 1, 1, 1, 1, 1, 1, 1, 1, 1, 1, 1, 4], [0, 1.02774298, 2.029191086, 3.012479778, 3.981238486, 4.951290381, 5.931946007, 6.930416638, 7.964088953, 8.997761269, 10.003308488, 10.98854748, 11.966603007, 12.943696749, 13.935593372, 14.954569896, 16], False, 3, [1, 1, 1, 1, 1, 1, 1, 1, 1, 1, 1, 1, 1, 1, 1, 1, 1, 1, 1], False), False)  # 32
sketch2.addGeometry(Part.BSplineCurve([Vector(24.988379, -6.744482, 0), Vector(24.989217, -6.783271, 0), Vector(24.990865, -6.859526, 0), Vector(25.007655, -6.97193, 0), Vector(25.034302, -7.080127, 0), Vector(25.072676, -7.183762, 0), Vector(25.121628, -7.282677, 0), Vector(25.179188, -7.378632, 0), Vector(25.250436, -7.468491, 0), Vector(25.32984, -7.554242, 0), Vector(25.416923, -7.632489, 0), Vector(25.509357, -7.701138, 0), Vector(25.606208, -7.758491, 0), Vector(25.706819, -7.805765, 0), Vector(25.811332, -7.84333, 0), Vector(25.920556, -7.869017, 0), Vector(26.033532, -7.885759, 0), Vector(26.110448, -7.887456, 0), Vector(26.149236, -7.888312, 0)], [4, 1, 1, 1, 1, 1, 1, 1, 1, 1, 1, 1, 1, 1, 1, 1, 4], [0, 1.027628768, 2.020204677, 3.0054932, 3.977172113, 4.942988595, 5.928118098, 6.937247537, 7.976812879, 9.023474825, 10.036014018, 11.024160528, 12.002107364, 12.979092523, 13.962271943, 14.972371232, 16], False, 3, [1, 1, 1, 1, 1, 1, 1, 1, 1, 1, 1, 1, 1, 1, 1, 1, 1, 1, 1], False), False)  # 33
sketch2.addGeometry(Part.BSplineCurve([Vector(26.13922, -5.580619, 0), Vector(26.09976, -5.581439, 0), Vector(26.022169, -5.583049, 0), Vector(25.908238, -5.600058, 0), Vector(25.798597, -5.625413, 0), Vector(25.693815, -5.66321, 0), Vector(25.593398, -5.71022, 0), Vector(25.497467, -5.767571, 0), Vector(25.406871, -5.836512, 0), Vector(25.321861, -5.914782, 0), Vector(25.243869, -6.000461, 0), Vector(25.175561, -6.092072, 0), Vector(25.116564, -6.188098, 0), Vector(25.071066, -6.290645, 0), Vector(25.033098, -6.396842, 0), Vector(25.007837, -6.508518, 0), Vector(24.990758, -6.624763, 0), Vector(24.989183, -6.704019, 0), Vector(24.988379, -6.744482, 0)], [4, 1, 1, 1, 1, 1, 1, 1, 1, 1, 1, 1, 1, 1, 1, 1, 4], [0, 1.037227242, 2.039512271, 3.023626077, 3.993053151, 4.963434463, 5.936395473, 6.927031705, 7.952593414, 8.972234493, 9.969891786, 10.954906455, 11.929570282, 12.915563215, 13.916770353, 14.936449251, 16], False, 3, [1, 1, 1, 1, 1, 1, 1, 1, 1, 1, 1, 1, 1, 1, 1, 1, 1, 1, 1], False), False)  # 34
sketch2.addGeometry(Part.BSplineCurve([Vector(26.149236, -5.965235, 0), Vector(26.174966, -5.966175, 0), Vector(26.225613, -5.968025, 0), Vector(26.300334, -5.977584, 0), Vector(26.371476, -5.996345, 0), Vector(26.440703, -6.019997, 0), Vector(26.506297, -6.052641, 0), Vector(26.57037, -6.090477, 0), Vector(26.630067, -6.137101, 0), Vector(26.68686, -6.189097, 0), Vector(26.740109, -6.245041, 0), Vector(26.784582, -6.306894, 0), Vector(26.824317, -6.370004, 0), Vector(26.856843, -6.436299, 0), Vector(26.88016, -6.505938, 0), Vector(26.899252, -6.577668, 0), Vector(26.90859, -6.65276, 0), Vector(26.910495, -6.703732, 0), Vector(26.911456, -6.729458, 0)], [4, 1, 1, 1, 1, 1, 1, 1, 1, 1, 1, 1, 1, 1, 1, 1, 4], [0, 1.030660162, 2.028821957, 3.007916034, 3.971836568, 4.952298414, 5.935762656, 6.946377494, 7.977730887, 9.018140113, 10.031403548, 11.021837986, 12.002299832, 12.978835615, 13.957929692, 14.969339838, 16], False, 3, [1, 1, 1, 1, 1, 1, 1, 1, 1, 1, 1, 1, 1, 1, 1, 1, 1, 1, 1], False), False)  # 35
sketch2.addGeometry(Part.BSplineCurve([Vector(25.372994, -6.736469, 0), Vector(25.373928, -6.710737, 0), Vector(25.375765, -6.660085, 0), Vector(25.385419, -6.585403, 0), Vector(25.403935, -6.5137, 0), Vector(25.429195, -6.444348, 0), Vector(25.460639, -6.376905, 0), Vector(25.501945, -6.313876, 0), Vector(25.547945, -6.251884, 0), Vector(25.601616, -6.193847, 0), Vector(25.659694, -6.140272, 0), Vector(25.721892, -6.093527, 0), Vector(25.786365, -6.053457, 0), Vector(25.85406, -6.021364, 0), Vector(25.923765, -5.996021, 0), Vector(25.996183, -5.977679, 0), Vector(26.071853, -5.968002, 0), Vector(26.123171, -5.966167, 0), Vector(26.149236, -5.965235, 0)], [4, 1, 1, 1, 1, 1, 1, 1, 1, 1, 1, 1, 1, 1, 1, 1, 4], [0, 1.017878107, 2.003660885, 2.970612419, 3.939454555, 4.919652619, 5.904816436, 6.913406512, 7.969270601, 9.02513469, 10.033724766, 11.041277553, 12.021475617, 12.990317753, 13.970071221, 14.968938047, 16], False, 3, [1, 1, 1, 1, 1, 1, 1, 1, 1, 1, 1, 1, 1, 1, 1, 1, 1, 1, 1], False), False)  # 36
sketch2.addGeometry(Part.BSplineCurve([Vector(26.152241, -7.503696, 0), Vector(26.125816, -7.503317, 0), Vector(26.073392, -7.502564, 0), Vector(25.99678, -7.490597, 0), Vector(25.922566, -7.474419, 0), Vector(25.852394, -7.448171, 0), Vector(25.783685, -7.418227, 0), Vector(25.719751, -7.377679, 0), Vector(25.656781, -7.33345, 0), Vector(25.600008, -7.280018, 0), Vector(25.546409, -7.223616, 0), Vector(25.500781, -7.162353, 0), Vector(25.461125, -7.09891, 0), Vector(25.428652, -7.032174, 0), Vector(25.404019, -6.962185, 0), Vector(25.385395, -6.889539, 0), Vector(25.375773, -6.813848, 0), Vector(25.37393, -6.762533, 0), Vector(25.372994, -6.736469, 0)], [4, 1, 1, 1, 1, 1, 1, 1, 1, 1, 1, 1, 1, 1, 1, 1, 4], [0, 1.04110597, 2.065418807, 3.052483904, 4.031345003, 5.015506832, 6.002484077, 7.011358201, 8.046031082, 9.071020927, 10.07714091, 11.052896618, 12.018827533, 12.997688631, 13.975042629, 14.971463175, 16], False, 3, [1, 1, 1, 1, 1, 1, 1, 1, 1, 1, 1, 1, 1, 1, 1, 1, 1, 1, 1], False), False)  # 37
sketch2.addGeometry(Part.BSplineCurve([Vector(26.911456, -6.729458, 0), Vector(26.911087, -6.756215, 0), Vector(26.91036, -6.80897, 0), Vector(26.898356, -6.886272, 0), Vector(26.881809, -6.960863, 0), Vector(26.857719, -7.032074, 0), Vector(26.826635, -7.099664, 0), Vector(26.787695, -7.163343, 0), Vector(26.743006, -7.224492, 0), Vector(26.690948, -7.281223, 0), Vector(26.63409, -7.332459, 0), Vector(26.575253, -7.379666, 0), Vector(26.511574, -7.4176, 0), Vector(26.445195, -7.448285, 0), Vector(26.376631, -7.474567, 0), Vector(26.304335, -7.490357, 0), Vector(26.22945, -7.502704, 0), Vector(26.178339, -7.503361, 0), Vector(26.152241, -7.503696, 0)], [4, 1, 1, 1, 1, 1, 1, 1, 1, 1, 1, 1, 1, 1, 1, 1, 4], [0, 1.061377507, 2.092600128, 3.099240629, 4.0928758, 5.071628549, 6.047053269, 7.052033583, 8.074955974, 9.097878365, 10.089742981, 11.0651677, 12.031904106, 12.992438743, 13.973254576, 14.965119192, 16], False, 3, [1, 1, 1, 1, 1, 1, 1, 1, 1, 1, 1, 1, 1, 1, 1, 1, 1, 1, 1], False), False)  # 38
sketch2.addConstraint(Sketcher.Constraint("Block", 6))
sketch2.addConstraint(Sketcher.Constraint("Block", 7))
sketch2.addConstraint(Sketcher.Constraint("Block", 8))
sketch2.addConstraint(Sketcher.Constraint("Block", 9))
sketch2.addConstraint(Sketcher.Constraint("Block", 10))
sketch2.addConstraint(Sketcher.Constraint("Block", 11))
sketch2.addConstraint(Sketcher.Constraint("Block", 12))
sketch2.addConstraint(Sketcher.Constraint("Block", 13))
sketch2.addConstraint(Sketcher.Constraint("Block", 14))
sketch2.addConstraint(Sketcher.Constraint("Block", 15))
sketch2.addConstraint(Sketcher.Constraint("Block", 19))
sketch2.addConstraint(Sketcher.Constraint("Block", 20))
sketch2.addConstraint(Sketcher.Constraint("Block", 21))
sketch2.addConstraint(Sketcher.Constraint("Block", 22))
sketch2.addConstraint(Sketcher.Constraint("Block", 24))
sketch2.addConstraint(Sketcher.Constraint("Block", 25))
sketch2.addConstraint(Sketcher.Constraint("Block", 26))
sketch2.addConstraint(Sketcher.Constraint("Block", 27))
sketch2.addConstraint(Sketcher.Constraint("Block", 31))
sketch2.addConstraint(Sketcher.Constraint("Block", 32))
sketch2.addConstraint(Sketcher.Constraint("Block", 33))
sketch2.addConstraint(Sketcher.Constraint("Block", 34))
sketch2.addConstraint(Sketcher.Constraint("Block", 35))
sketch2.addConstraint(Sketcher.Constraint("Block", 36))
sketch2.addConstraint(Sketcher.Constraint("Block", 37))
sketch2.addConstraint(Sketcher.Constraint("Block", 38))
sketch2.addConstraint(Sketcher.Constraint("Coincident", 16, 2, 17, 1))
sketch2.addConstraint(Sketcher.Constraint("Coincident", 17, 2, 18, 1))
sketch2.addConstraint(Sketcher.Constraint("Coincident", 18, 2, 19, 2))
sketch2.addConstraint(Sketcher.Constraint("Coincident", 22, 1, 23, 1))
sketch2.addConstraint(Sketcher.Constraint("Coincident", 23, 2, 24, 2))
sketch2.addConstraint(Sketcher.Constraint("Coincident", 27, 1, 28, 1))
sketch2.addConstraint(Sketcher.Constraint("Coincident", 28, 2, 29, 1))
sketch2.addConstraint(Sketcher.Constraint("Coincident", 29, 2, 30, 1))
sketch2.addConstraint(Sketcher.Constraint("Coincident", 30, 2, 16, 1))
sketch2.addConstraint(Sketcher.Constraint("Horizontal", 0))
sketch2.addConstraint(Sketcher.Constraint("Horizontal", 2))
sketch2.addConstraint(Sketcher.Constraint("Vertical", 3))
sketch2.addConstraint(Sketcher.Constraint("Horizontal", 4))
sketch2.addConstraint(Sketcher.Constraint("Vertical", 5))
sketch2.addConstraint(Sketcher.Constraint("Horizontal", 16))
sketch2.addConstraint(Sketcher.Constraint("Horizontal", 29))
sketch2.addConstraint(Sketcher.Constraint("Vertical", 30))
sketch2.addConstraint(Sketcher.Constraint("DistanceY", 5, 2, 5, 1, Q("5 mm")))
sketch2.addConstraint(Sketcher.Constraint("DistanceY", 16, 2, 4, 2, Q("5 mm")))
sketch2.addConstraint(Sketcher.Constraint("DistanceX", 0, 2, 0, 1, Q("1.38722 mm")))
sketch2.addConstraint(Sketcher.Constraint("DistanceX", 2, 1, 2, 2, Q("1.025641 mm")))
sketch2.addConstraint(Sketcher.Constraint("DistanceX", 5, 2, 16, 2, Q("6.313101 mm")))
sketch2.addConstraint(Sketcher.Constraint("Distance", 1, Q("0.990751 mm")))
sketch2.addConstraint(Sketcher.Constraint("Distance", 17, Q("2.836051 mm")))
sketch2.addConstraint(Sketcher.Constraint("DistanceX", 4, 1, 4, 2, Q("0.897436 mm")))
sketch2.addConstraint(Sketcher.Constraint("DistanceX", 16, 2, 16, 1, Q("2.276643 mm")))
sketch2.addConstraint(Sketcher.Constraint("DistanceX", 29, 1, 29, 2, Q("1.565505 mm")))
sketch2.addConstraint(Sketcher.Constraint("DistanceY", 30, 2, 30, 1, Q("0.833333 mm")))
sketch2.addConstraint(Sketcher.Constraint("DistanceX", -1, 1, 0, 2, Q("14.37039 mm")))
sketch2.addConstraint(Sketcher.Constraint("DistanceX", -1, 1, 17, 2, Q("21.48277 mm")))
sketch2.addConstraint(Sketcher.Constraint("DistanceY", 16, 2, 23, 2, Q("3.782051 mm")))
sketch2.setExpression("Constraints[49]", "Params.sketch2_height")
pocket1 = body.newObject("PartDesign::Pocket", "Pocket")
pocket1.Profile = sketch2
pocket1.setExpression("Length", "Params.pocket1_length")
pocket1.Reversed = True
doc.recompute()

fillet = body.newObject("PartDesign::Fillet", "Fillet")
fillet.Base = (pocket1, edges_at(pocket1, [(0, 6.35, 0)]))
fillet.setExpression("Radius", "Params.fillet_radius")

doc.recompute()
